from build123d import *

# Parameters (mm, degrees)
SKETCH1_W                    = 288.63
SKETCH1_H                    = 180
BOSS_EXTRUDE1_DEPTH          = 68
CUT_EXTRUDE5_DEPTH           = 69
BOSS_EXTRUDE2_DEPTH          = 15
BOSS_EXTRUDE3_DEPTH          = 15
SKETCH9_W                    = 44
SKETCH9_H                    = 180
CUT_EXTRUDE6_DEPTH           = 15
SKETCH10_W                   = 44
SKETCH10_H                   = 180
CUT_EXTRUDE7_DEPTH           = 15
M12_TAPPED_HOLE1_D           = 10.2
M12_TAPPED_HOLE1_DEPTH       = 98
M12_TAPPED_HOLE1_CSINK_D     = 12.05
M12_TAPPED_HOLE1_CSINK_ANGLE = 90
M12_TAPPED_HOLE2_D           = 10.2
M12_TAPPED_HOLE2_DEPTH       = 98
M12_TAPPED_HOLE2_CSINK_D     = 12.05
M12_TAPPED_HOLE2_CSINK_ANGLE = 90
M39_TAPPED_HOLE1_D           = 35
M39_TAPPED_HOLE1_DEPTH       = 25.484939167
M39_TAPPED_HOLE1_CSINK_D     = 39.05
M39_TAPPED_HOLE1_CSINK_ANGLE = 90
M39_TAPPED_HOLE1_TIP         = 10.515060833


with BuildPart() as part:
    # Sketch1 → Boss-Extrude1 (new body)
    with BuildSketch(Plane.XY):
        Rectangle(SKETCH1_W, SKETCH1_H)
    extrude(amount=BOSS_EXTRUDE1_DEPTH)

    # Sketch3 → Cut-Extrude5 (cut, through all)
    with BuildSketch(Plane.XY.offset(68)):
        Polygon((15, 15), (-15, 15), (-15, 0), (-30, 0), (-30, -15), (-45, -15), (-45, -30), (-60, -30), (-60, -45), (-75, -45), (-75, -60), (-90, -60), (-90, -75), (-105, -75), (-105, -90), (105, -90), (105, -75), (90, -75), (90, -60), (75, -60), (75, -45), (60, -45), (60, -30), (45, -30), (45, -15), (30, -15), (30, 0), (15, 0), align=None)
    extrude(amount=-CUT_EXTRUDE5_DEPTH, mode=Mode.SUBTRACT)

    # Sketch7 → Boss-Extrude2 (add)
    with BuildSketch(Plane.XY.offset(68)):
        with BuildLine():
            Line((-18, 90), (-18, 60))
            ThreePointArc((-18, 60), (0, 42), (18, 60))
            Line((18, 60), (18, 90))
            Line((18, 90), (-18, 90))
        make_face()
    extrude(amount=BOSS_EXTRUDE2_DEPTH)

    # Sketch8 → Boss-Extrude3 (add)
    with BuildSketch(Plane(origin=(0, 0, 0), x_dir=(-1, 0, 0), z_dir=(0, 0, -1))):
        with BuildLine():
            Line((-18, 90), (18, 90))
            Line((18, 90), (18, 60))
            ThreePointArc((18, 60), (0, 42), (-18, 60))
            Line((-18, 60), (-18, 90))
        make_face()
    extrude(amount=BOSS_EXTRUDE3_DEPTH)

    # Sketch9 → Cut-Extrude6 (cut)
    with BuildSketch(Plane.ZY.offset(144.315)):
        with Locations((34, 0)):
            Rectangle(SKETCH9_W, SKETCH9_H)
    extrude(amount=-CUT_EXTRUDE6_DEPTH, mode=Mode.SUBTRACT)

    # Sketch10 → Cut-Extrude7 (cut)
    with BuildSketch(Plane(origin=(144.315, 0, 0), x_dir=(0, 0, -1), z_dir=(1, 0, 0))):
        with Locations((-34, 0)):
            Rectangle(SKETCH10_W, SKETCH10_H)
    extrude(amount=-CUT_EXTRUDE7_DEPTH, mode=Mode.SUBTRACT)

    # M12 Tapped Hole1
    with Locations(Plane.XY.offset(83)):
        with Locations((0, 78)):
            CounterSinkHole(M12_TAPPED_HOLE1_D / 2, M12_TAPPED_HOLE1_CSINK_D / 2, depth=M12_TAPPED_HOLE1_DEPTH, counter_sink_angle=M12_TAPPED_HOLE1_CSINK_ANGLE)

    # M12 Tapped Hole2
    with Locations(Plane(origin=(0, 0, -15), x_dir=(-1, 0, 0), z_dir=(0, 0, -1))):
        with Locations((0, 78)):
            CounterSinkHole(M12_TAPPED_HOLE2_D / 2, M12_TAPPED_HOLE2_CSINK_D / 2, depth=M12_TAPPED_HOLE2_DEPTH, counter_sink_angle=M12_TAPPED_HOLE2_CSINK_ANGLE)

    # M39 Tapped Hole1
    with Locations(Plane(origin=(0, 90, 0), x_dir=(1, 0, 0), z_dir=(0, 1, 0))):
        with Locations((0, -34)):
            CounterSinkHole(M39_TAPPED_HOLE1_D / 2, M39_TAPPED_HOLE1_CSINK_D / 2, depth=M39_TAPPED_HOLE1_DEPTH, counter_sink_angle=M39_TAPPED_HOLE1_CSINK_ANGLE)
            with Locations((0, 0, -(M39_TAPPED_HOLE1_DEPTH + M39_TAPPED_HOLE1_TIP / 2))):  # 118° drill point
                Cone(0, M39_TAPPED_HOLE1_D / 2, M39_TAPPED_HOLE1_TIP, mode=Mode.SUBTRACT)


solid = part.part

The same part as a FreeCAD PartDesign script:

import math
import FreeCAD as App
import Part
import Sketcher
from FreeCAD import Vector
Q = App.Units.Quantity

doc = App.newDocument("Part")
body = doc.addObject("PartDesign::Body", "Body")

sketch1 = body.newObject("Sketcher::SketchObject", "Sketch")
sketch1.AttachmentSupport = (doc.getObject("XY_Plane"), [""])
sketch1.MapMode = "FlatFace"
sketch1.addGeometry([
    Part.LineSegment(Vector(-144, 90, 0), Vector(-144, -90, 0)),
    Part.LineSegment(Vector(-144, -90, 0), Vector(144, -90, 0)),
    Part.LineSegment(Vector(144, -90, 0), Vector(144, 90, 0)),
    Part.LineSegment(Vector(144, 90, 0), Vector(-144, 90, 0)),
], False)
sketch1.addConstraint([
    Sketcher.Constraint("Coincident", 0, 2, 1, 1),
    Sketcher.Constraint("Coincident", 1, 2, 2, 1),
    Sketcher.Constraint("Coincident", 2, 2, 3, 1),
    Sketcher.Constraint("Coincident", 3, 2, 0, 1),
    Sketcher.Constraint("Vertical", 0),
    Sketcher.Constraint("Horizontal", 1),
    Sketcher.Constraint("Vertical", 2),
    Sketcher.Constraint("Horizontal", 3),
    Sketcher.Constraint("Symmetric", 0, 2, 2, 2, -1, 1),
    Sketcher.Constraint("DistanceY", 0, 2, 0, 1, Q("180 mm")),
    Sketcher.Constraint("DistanceX", 1, 1, 1, 2, Q("288.63 mm")),
])
pad1 = body.newObject("PartDesign::Pad", "Pad")
pad1.Profile = sketch1
pad1.Length = 68

sketch2 = body.newObject("Sketcher::SketchObject", "Sketch001")
sketch2.AttachmentSupport = (doc.getObject("XY_Plane"), [""])
sketch2.MapMode = "FlatFace"
sketch2.AttachmentOffset = App.Placement(Vector(0, 0, 68), App.Rotation())
sketch2.addGeometry([
    Part.LineSegment(Vector(15, 15, 0), Vector(-15, 15, 0)),
    Part.LineSegment(Vector(-15, 15, 0), Vector(-15, 0, 0)),
    Part.LineSegment(Vector(-15, 0, 0), Vector(-30, 0, 0)),
    Part.LineSegment(Vector(-30, 0, 0), Vector(-30, -15, 0)),
    Part.LineSegment(Vector(-30, -15, 0), Vector(-45, -15, 0)),
    Part.LineSegment(Vector(-45, -15, 0), Vector(-45, -30, 0)),
    Part.LineSegment(Vector(-45, -30, 0), Vector(-60, -30, 0)),
    Part.LineSegment(Vector(-60, -30, 0), Vector(-60, -45, 0)),
    Part.LineSegment(Vector(-60, -45, 0), Vector(-75, -45, 0)),
    Part.LineSegment(Vector(-75, -45, 0), Vector(-75, -60, 0)),
    Part.LineSegment(Vector(-75, -60, 0), Vector(-90, -60, 0)),
    Part.LineSegment(Vector(-90, -60, 0), Vector(-90, -75, 0)),
    Part.LineSegment(Vector(-90, -75, 0), Vector(-105, -75, 0)),
    Part.LineSegment(Vector(-105, -75, 0), Vector(-105, -90, 0)),
    Part.LineSegment(Vector(-105, -90, 0), Vector(105, -90, 0)),
    Part.LineSegment(Vector(105, -90, 0), Vector(105, -75, 0)),
    Part.LineSegment(Vector(105, -75, 0), Vector(90, -75, 0)),
    Part.LineSegment(Vector(90, -75, 0), Vector(90, -60, 0)),
    Part.LineSegment(Vector(90, -60, 0), Vector(75, -60, 0)),
    Part.LineSegment(Vector(75, -60, 0), Vector(75, -45, 0)),
    Part.LineSegment(Vector(75, -45, 0), Vector(60, -45, 0)),
    Part.LineSegment(Vector(60, -45, 0), Vector(60, -30, 0)),
    Part.LineSegment(Vector(60, -30, 0), Vector(45, -30, 0)),
    Part.LineSegment(Vector(45, -30, 0), Vector(45, -15, 0)),
    Part.LineSegment(Vector(45, -15, 0), Vector(30, -15, 0)),
    Part.LineSegment(Vector(30, -15, 0), Vector(30, 0, 0)),
    Part.LineSegment(Vector(30, 0, 0), Vector(15, 0, 0)),
    Part.LineSegment(Vector(15, 0, 0), Vector(15, 15, 0)),
], False)
sketch2.addConstraint([
    Sketcher.Constraint("Coincident", 0, 2, 1, 1),
    Sketcher.Constraint("Coincident", 1, 2, 2, 1),
    Sketcher.Constraint("Coincident", 2, 2, 3, 1),
    Sketcher.Constraint("Coincident", 3, 2, 4, 1),
    Sketcher.Constraint("Coincident", 4, 2, 5, 1),
    Sketcher.Constraint("Coincident", 5, 2, 6, 1),
    Sketcher.Constraint("Coincident", 6, 2, 7, 1),
    Sketcher.Constraint("Coincident", 7, 2, 8, 1),
    Sketcher.Constraint("Coincident", 8, 2, 9, 1),
    Sketcher.Constraint("Coincident", 9, 2, 10, 1),
    Sketcher.Constraint("Coincident", 10, 2, 11, 1),
    Sketcher.Constraint("Coincident", 11, 2, 12, 1),
    Sketcher.Constraint("Coincident", 12, 2, 13, 1),
    Sketcher.Constraint("Coincident", 13, 2, 14, 1),
    Sketcher.Constraint("Coincident", 14, 2, 15, 1),
    Sketcher.Constraint("Coincident", 15, 2, 16, 1),
    Sketcher.Constraint("Coincident", 16, 2, 17, 1),
    Sketcher.Constraint("Coincident", 17, 2, 18, 1),
    Sketcher.Constraint("Coincident", 18, 2, 19, 1),
    Sketcher.Constraint("Coincident", 19, 2, 20, 1),
    Sketcher.Constraint("Coincident", 20, 2, 21, 1),
    Sketcher.Constraint("Coincident", 21, 2, 22, 1),
    Sketcher.Constraint("Coincident", 22, 2, 23, 1),
    Sketcher.Constraint("Coincident", 23, 2, 24, 1),
    Sketcher.Constraint("Coincident", 24, 2, 25, 1),
    Sketcher.Constraint("Coincident", 25, 2, 26, 1),
    Sketcher.Constraint("Coincident", 26, 2, 27, 1),
    Sketcher.Constraint("Coincident", 27, 2, 0, 1),
    Sketcher.Constraint("Horizontal", 0),
    Sketcher.Constraint("Vertical", 1),
    Sketcher.Constraint("Horizontal", 2),
    Sketcher.Constraint("Vertical", 3),
    Sketcher.Constraint("Horizontal", 4),
    Sketcher.Constraint("Vertical", 5),
    Sketcher.Constraint("Horizontal", 6),
    Sketcher.Constraint("Vertical", 7),
    Sketcher.Constraint("Horizontal", 8),
    Sketcher.Constraint("Vertical", 9),
    Sketcher.Constraint("Horizontal", 10),
    Sketcher.Constraint("Vertical", 11),
    Sketcher.Constraint("Horizontal", 12),
    Sketcher.Constraint("Vertical", 13),
    Sketcher.Constraint("Horizontal", 14),
    Sketcher.Constraint("Vertical", 15),
    Sketcher.Constraint("Horizontal", 16),
    Sketcher.Constraint("Vertical", 17),
    Sketcher.Constraint("Horizontal", 18),
    Sketcher.Constraint("Vertical", 19),
    Sketcher.Constraint("Horizontal", 20),
    Sketcher.Constraint("Vertical", 21),
    Sketcher.Constraint("Horizontal", 22),
    Sketcher.Constraint("Vertical", 23),
    Sketcher.Constraint("Horizontal", 24),
    Sketcher.Constraint("Vertical", 25),
    Sketcher.Constraint("Horizontal", 26),
    Sketcher.Constraint("Vertical", 27),
    Sketcher.Constraint("Symmetric", 2, 2, 25, 2, -1, 1),
    Sketcher.Constraint("Symmetric", 12, 2, 15, 2, -2),
    Sketcher.Constraint("Symmetric", 10, 2, 17, 2, -2),
    Sketcher.Constraint("Symmetric", 8, 2, 19, 2, -2),
    Sketcher.Constraint("Symmetric", 6, 2, 21, 2, -2),
    Sketcher.Constraint("Symmetric", 4, 2, 23, 2, -2),
    Sketcher.Constraint("Symmetric", 1, 2, 26, 2, -2),
    Sketcher.Constraint("Equal", 2, 4),
    Sketcher.Constraint("Equal", 4, 6),
    Sketcher.Constraint("Equal", 6, 8),
    Sketcher.Constraint("Equal", 8, 10),
    Sketcher.Constraint("Equal", 10, 12),
    Sketcher.Constraint("Equal", 26, 1),
    Sketcher.Constraint("Equal", 1, 3),
    Sketcher.Constraint("Equal", 3, 5),
    Sketcher.Constraint("Equal", 5, 7),
    Sketcher.Constraint("Equal", 7, 9),
    Sketcher.Constraint("Equal", 9, 11),
    Sketcher.Constraint("Equal", 11, 13),
    Sketcher.Constraint("DistanceX", 0, 2, 0, 1, Q("30 mm")),
    Sketcher.Constraint("DistanceX", 2, 2, 2, 1, Q("15 mm")),
])
pocket1 = body.newObject("PartDesign::Pocket", "Pocket")
pocket1.Profile = sketch2
pocket1.Type = "ThroughAll"

sketch3 = body.newObject("Sketcher::SketchObject", "Sketch002")
sketch3.AttachmentSupport = (doc.getObject("XY_Plane"), [""])
sketch3.MapMode = "FlatFace"
sketch3.AttachmentOffset = App.Placement(Vector(0, 0, 68), App.Rotation())
sketch3.addGeometry([
    Part.LineSegment(Vector(-18, 90, 0), Vector(-18, 60, 0)),
    Part.ArcOfCircle(Part.Circle(Vector(0, 60, 0), Vector(0, 0, 1), 18), math.radians(180), math.radians(360)),
    Part.LineSegment(Vector(18, 60, 0), Vector(18, 90, 0)),
    Part.LineSegment(Vector(18, 90, 0), Vector(-18, 90, 0)),
], False)
sketch3.addConstraint([
    Sketcher.Constraint("Tangent", 0, 2, 1, 1),
    Sketcher.Constraint("Tangent", 1, 2, 2, 1),
    Sketcher.Constraint("Coincident", 2, 2, 3, 1),
    Sketcher.Constraint("Coincident", 3, 2, 0, 1),
    Sketcher.Constraint("Vertical", 0),
    Sketcher.Constraint("Vertical", 2),
    Sketcher.Constraint("Horizontal", 3),
    Sketcher.Constraint("PointOnObject", 1, 3, -2),
    Sketcher.Constraint("Radius", 1, Q("18 mm")),
    Sketcher.Constraint("DistanceY", 0, 2, 0, 1, Q("30 mm")),
    Sketcher.Constraint("DistanceY", -1, 1, 1, 3, Q("60 mm")),
])
pad2 = body.newObject("PartDesign::Pad", "Pad001")
pad2.Profile = sketch3
pad2.Length = 15

sketch4 = body.newObject("Sketcher::SketchObject", "Sketch003")
sketch4.AttachmentSupport = (doc.getObject("XY_Plane"), [""])
sketch4.MapMode = "FlatFace"
sketch4.addGeometry([
    Part.LineSegment(Vector(-18, 90, 0), Vector(18, 90, 0)),
    Part.LineSegment(Vector(18, 90, 0), Vector(18, 60, 0)),
    Part.ArcOfCircle(Part.Circle(Vector(0, 60, 0), Vector(0, 0, 1), 18), math.radians(180), math.radians(360)),
    Part.LineSegment(Vector(-18, 60, 0), Vector(-18, 90, 0)),
], False)
sketch4.addConstraint([
    Sketcher.Constraint("Coincident", 0, 2, 1, 1),
    Sketcher.Constraint("Tangent", 1, 2, 2, 2),
    Sketcher.Constraint("Tangent", 2, 1, 3, 1),
    Sketcher.Constraint("Coincident", 3, 2, 0, 1),
    Sketcher.Constraint("Horizontal", 0),
    Sketcher.Constraint("Vertical", 1),
    Sketcher.Constraint("Vertical", 3),
    Sketcher.Constraint("PointOnObject", 2, 3, -2),
    Sketcher.Constraint("Radius", 2, Q("18 mm")),
    Sketcher.Constraint("DistanceY", 1, 2, 1, 1, Q("30 mm")),
    Sketcher.Constraint("DistanceY", -1, 1, 2, 3, Q("60 mm")),
])
pad3 = body.newObject("PartDesign::Pad", "Pad002")
pad3.Profile = sketch4
pad3.Length = 15
pad3.Reversed = True

sketch5 = body.newObject("Sketcher::SketchObject", "Sketch004")
sketch5.AttachmentSupport = (doc.getObject("YZ_Plane"), [""])
sketch5.MapMode = "FlatFace"
sketch5.AttachmentOffset = App.Placement(Vector(0, 0, -144.315), App.Rotation())
sketch5.addGeometry([
    Part.LineSegment(Vector(90, 12, 0), Vector(-90, 12, 0)),
    Part.LineSegment(Vector(-90, 12, 0), Vector(-90, 56, 0)),
    Part.LineSegment(Vector(-90, 56, 0), Vector(90, 56, 0)),
    Part.LineSegment(Vector(90, 56, 0), Vector(90, 12, 0)),
], False)
sketch5.addConstraint([
    Sketcher.Constraint("Coincident", 0, 2, 1, 1),
    Sketcher.Constraint("Coincident", 1, 2, 2, 1),
    Sketcher.Constraint("Coincident", 2, 2, 3, 1),
    Sketcher.Constraint("Coincident", 3, 2, 0, 1),
    Sketcher.Constraint("Horizontal", 0),
    Sketcher.Constraint("Vertical", 1),
    Sketcher.Constraint("Horizontal", 2),
    Sketcher.Constraint("Vertical", 3),
    Sketcher.Constraint("DistanceX", 0, 2, 0, 1, Q("180 mm")),
    Sketcher.Constraint("DistanceY", 1, 1, 1, 2, Q("44 mm")),
    Sketcher.Constraint("DistanceX", 0, 2, -1, 1, Q("90 mm")),
    Sketcher.Constraint("DistanceY", -1, 1, 0, 2, Q("12 mm")),
])
pocket2 = body.newObject("PartDesign::Pocket", "Pocket001")
pocket2.Profile = sketch5
pocket2.Length = 15
pocket2.Reversed = True

sketch6 = body.newObject("Sketcher::SketchObject", "Sketch005")
sketch6.AttachmentSupport = (doc.getObject("YZ_Plane"), [""])
sketch6.MapMode = "FlatFace"
sketch6.AttachmentOffset = App.Placement(Vector(0, 0, 144.315), App.Rotation())
sketch6.addGeometry([
    Part.LineSegment(Vector(90, 56, 0), Vector(-90, 56, 0)),
    Part.LineSegment(Vector(-90, 56, 0), Vector(-90, 12, 0)),
    Part.LineSegment(Vector(-90, 12, 0), Vector(90, 12, 0)),
    Part.LineSegment(Vector(90, 12, 0), Vector(90, 56, 0)),
], False)
sketch6.addConstraint([
    Sketcher.Constraint("Coincident", 0, 2, 1, 1),
    Sketcher.Constraint("Coincident", 1, 2, 2, 1),
    Sketcher.Constraint("Coincident", 2, 2, 3, 1),
    Sketcher.Constraint("Coincident", 3, 2, 0, 1),
    Sketcher.Constraint("Horizontal", 0),
    Sketcher.Constraint("Vertical", 1),
    Sketcher.Constraint("Horizontal", 2),
    Sketcher.Constraint("Vertical", 3),
    Sketcher.Constraint("DistanceX", 0, 2, 0, 1, Q("180 mm")),
    Sketcher.Constraint("DistanceY", 1, 2, 1, 1, Q("44 mm")),
    Sketcher.Constraint("DistanceX", 0, 2, -1, 1, Q("90 mm")),
    Sketcher.Constraint("DistanceY", -1, 1, 0, 2, Q("56 mm")),
])
pocket3 = body.newObject("PartDesign::Pocket", "Pocket002")
pocket3.Profile = sketch6
pocket3.Length = 15

sketch7 = body.newObject("Sketcher::SketchObject", "Sketch006")
sketch7.AttachmentSupport = (doc.getObject("XY_Plane"), [""])
sketch7.MapMode = "FlatFace"
sketch7.AttachmentOffset = App.Placement(Vector(0, 0, 83), App.Rotation())
sketch7.addGeometry(Part.Circle(Vector(0, 78, 0), Vector(0, 0, 1), 5), False)
sketch7.addConstraint([
    Sketcher.Constraint("PointOnObject", 0, 3, -2),
    Sketcher.Constraint("Diameter", 0, Q("10.2 mm")),
    Sketcher.Constraint("DistanceY", -1, 1, 0, 3, Q("78 mm")),
])
doc.recompute()
hole = body.newObject("PartDesign::Hole", "Hole")
hole.Profile = sketch7
hole.ThreadType = "None"
hole.Diameter = 10.2
hole.DepthType = "Dimension"
hole.Depth = 98
hole.DrillPoint = "Flat"
hole.HoleCutType = "Countersink"
hole.HoleCutDiameter = 12.05
hole.HoleCutCountersinkAngle = 90

sketch8 = body.newObject("Sketcher::SketchObject", "Sketch007")
sketch8.AttachmentSupport = (doc.getObject("XY_Plane"), [""])
sketch8.MapMode = "FlatFace"
sketch8.AttachmentOffset = App.Placement(Vector(0, 0, -15), App.Rotation())
sketch8.addGeometry(Part.Circle(Vector(0, 78, 0), Vector(0, 0, 1), 5), False)
sketch8.addConstraint([
    Sketcher.Constraint("PointOnObject", 0, 3, -2),
    Sketcher.Constraint("Diameter", 0, Q("10.2 mm")),
    Sketcher.Constraint("DistanceY", -1, 1, 0, 3, Q("78 mm")),
])
doc.recompute()
hole2 = body.newObject("PartDesign::Hole", "Hole001")
hole2.Profile = sketch8
hole2.ThreadType = "None"
hole2.Diameter = 10.2
hole2.DepthType = "Dimension"
hole2.Depth = 98
hole2.DrillPoint = "Flat"
hole2.HoleCutType = "Countersink"
hole2.HoleCutDiameter = 12.05
hole2.HoleCutCountersinkAngle = 90
hole2.Reversed = True

sketch9 = body.newObject("Sketcher::SketchObject", "Sketch008")
sketch9.AttachmentSupport = (doc.getObject("XZ_Plane"), [""])
sketch9.MapMode = "FlatFace"
sketch9.AttachmentOffset = App.Placement(Vector(0, 0, -90), App.Rotation())
sketch9.addGeometry(Part.Circle(Vector(0, 34, 0), Vector(0, 0, 1), 18), False)
sketch9.addConstraint([
    Sketcher.Constraint("PointOnObject", 0, 3, -2),
    Sketcher.Constraint("Diameter", 0, Q("35 mm")),
    Sketcher.Constraint("DistanceY", -1, 1, 0, 3, Q("34 mm")),
])
doc.recompute()
hole3 = body.newObject("PartDesign::Hole", "Hole002")
hole3.Profile = sketch9
hole3.ThreadType = "None"
hole3.Diameter = 35
hole3.DepthType = "Dimension"
hole3.Depth = 25.484939
hole3.DrillPoint = "Angled"
hole3.DrillPointAngle = 118
hole3.HoleCutType = "Countersink"
hole3.HoleCutDiameter = 39.05
hole3.HoleCutCountersinkAngle = 90
hole3.Reversed = True

doc.recompute()
